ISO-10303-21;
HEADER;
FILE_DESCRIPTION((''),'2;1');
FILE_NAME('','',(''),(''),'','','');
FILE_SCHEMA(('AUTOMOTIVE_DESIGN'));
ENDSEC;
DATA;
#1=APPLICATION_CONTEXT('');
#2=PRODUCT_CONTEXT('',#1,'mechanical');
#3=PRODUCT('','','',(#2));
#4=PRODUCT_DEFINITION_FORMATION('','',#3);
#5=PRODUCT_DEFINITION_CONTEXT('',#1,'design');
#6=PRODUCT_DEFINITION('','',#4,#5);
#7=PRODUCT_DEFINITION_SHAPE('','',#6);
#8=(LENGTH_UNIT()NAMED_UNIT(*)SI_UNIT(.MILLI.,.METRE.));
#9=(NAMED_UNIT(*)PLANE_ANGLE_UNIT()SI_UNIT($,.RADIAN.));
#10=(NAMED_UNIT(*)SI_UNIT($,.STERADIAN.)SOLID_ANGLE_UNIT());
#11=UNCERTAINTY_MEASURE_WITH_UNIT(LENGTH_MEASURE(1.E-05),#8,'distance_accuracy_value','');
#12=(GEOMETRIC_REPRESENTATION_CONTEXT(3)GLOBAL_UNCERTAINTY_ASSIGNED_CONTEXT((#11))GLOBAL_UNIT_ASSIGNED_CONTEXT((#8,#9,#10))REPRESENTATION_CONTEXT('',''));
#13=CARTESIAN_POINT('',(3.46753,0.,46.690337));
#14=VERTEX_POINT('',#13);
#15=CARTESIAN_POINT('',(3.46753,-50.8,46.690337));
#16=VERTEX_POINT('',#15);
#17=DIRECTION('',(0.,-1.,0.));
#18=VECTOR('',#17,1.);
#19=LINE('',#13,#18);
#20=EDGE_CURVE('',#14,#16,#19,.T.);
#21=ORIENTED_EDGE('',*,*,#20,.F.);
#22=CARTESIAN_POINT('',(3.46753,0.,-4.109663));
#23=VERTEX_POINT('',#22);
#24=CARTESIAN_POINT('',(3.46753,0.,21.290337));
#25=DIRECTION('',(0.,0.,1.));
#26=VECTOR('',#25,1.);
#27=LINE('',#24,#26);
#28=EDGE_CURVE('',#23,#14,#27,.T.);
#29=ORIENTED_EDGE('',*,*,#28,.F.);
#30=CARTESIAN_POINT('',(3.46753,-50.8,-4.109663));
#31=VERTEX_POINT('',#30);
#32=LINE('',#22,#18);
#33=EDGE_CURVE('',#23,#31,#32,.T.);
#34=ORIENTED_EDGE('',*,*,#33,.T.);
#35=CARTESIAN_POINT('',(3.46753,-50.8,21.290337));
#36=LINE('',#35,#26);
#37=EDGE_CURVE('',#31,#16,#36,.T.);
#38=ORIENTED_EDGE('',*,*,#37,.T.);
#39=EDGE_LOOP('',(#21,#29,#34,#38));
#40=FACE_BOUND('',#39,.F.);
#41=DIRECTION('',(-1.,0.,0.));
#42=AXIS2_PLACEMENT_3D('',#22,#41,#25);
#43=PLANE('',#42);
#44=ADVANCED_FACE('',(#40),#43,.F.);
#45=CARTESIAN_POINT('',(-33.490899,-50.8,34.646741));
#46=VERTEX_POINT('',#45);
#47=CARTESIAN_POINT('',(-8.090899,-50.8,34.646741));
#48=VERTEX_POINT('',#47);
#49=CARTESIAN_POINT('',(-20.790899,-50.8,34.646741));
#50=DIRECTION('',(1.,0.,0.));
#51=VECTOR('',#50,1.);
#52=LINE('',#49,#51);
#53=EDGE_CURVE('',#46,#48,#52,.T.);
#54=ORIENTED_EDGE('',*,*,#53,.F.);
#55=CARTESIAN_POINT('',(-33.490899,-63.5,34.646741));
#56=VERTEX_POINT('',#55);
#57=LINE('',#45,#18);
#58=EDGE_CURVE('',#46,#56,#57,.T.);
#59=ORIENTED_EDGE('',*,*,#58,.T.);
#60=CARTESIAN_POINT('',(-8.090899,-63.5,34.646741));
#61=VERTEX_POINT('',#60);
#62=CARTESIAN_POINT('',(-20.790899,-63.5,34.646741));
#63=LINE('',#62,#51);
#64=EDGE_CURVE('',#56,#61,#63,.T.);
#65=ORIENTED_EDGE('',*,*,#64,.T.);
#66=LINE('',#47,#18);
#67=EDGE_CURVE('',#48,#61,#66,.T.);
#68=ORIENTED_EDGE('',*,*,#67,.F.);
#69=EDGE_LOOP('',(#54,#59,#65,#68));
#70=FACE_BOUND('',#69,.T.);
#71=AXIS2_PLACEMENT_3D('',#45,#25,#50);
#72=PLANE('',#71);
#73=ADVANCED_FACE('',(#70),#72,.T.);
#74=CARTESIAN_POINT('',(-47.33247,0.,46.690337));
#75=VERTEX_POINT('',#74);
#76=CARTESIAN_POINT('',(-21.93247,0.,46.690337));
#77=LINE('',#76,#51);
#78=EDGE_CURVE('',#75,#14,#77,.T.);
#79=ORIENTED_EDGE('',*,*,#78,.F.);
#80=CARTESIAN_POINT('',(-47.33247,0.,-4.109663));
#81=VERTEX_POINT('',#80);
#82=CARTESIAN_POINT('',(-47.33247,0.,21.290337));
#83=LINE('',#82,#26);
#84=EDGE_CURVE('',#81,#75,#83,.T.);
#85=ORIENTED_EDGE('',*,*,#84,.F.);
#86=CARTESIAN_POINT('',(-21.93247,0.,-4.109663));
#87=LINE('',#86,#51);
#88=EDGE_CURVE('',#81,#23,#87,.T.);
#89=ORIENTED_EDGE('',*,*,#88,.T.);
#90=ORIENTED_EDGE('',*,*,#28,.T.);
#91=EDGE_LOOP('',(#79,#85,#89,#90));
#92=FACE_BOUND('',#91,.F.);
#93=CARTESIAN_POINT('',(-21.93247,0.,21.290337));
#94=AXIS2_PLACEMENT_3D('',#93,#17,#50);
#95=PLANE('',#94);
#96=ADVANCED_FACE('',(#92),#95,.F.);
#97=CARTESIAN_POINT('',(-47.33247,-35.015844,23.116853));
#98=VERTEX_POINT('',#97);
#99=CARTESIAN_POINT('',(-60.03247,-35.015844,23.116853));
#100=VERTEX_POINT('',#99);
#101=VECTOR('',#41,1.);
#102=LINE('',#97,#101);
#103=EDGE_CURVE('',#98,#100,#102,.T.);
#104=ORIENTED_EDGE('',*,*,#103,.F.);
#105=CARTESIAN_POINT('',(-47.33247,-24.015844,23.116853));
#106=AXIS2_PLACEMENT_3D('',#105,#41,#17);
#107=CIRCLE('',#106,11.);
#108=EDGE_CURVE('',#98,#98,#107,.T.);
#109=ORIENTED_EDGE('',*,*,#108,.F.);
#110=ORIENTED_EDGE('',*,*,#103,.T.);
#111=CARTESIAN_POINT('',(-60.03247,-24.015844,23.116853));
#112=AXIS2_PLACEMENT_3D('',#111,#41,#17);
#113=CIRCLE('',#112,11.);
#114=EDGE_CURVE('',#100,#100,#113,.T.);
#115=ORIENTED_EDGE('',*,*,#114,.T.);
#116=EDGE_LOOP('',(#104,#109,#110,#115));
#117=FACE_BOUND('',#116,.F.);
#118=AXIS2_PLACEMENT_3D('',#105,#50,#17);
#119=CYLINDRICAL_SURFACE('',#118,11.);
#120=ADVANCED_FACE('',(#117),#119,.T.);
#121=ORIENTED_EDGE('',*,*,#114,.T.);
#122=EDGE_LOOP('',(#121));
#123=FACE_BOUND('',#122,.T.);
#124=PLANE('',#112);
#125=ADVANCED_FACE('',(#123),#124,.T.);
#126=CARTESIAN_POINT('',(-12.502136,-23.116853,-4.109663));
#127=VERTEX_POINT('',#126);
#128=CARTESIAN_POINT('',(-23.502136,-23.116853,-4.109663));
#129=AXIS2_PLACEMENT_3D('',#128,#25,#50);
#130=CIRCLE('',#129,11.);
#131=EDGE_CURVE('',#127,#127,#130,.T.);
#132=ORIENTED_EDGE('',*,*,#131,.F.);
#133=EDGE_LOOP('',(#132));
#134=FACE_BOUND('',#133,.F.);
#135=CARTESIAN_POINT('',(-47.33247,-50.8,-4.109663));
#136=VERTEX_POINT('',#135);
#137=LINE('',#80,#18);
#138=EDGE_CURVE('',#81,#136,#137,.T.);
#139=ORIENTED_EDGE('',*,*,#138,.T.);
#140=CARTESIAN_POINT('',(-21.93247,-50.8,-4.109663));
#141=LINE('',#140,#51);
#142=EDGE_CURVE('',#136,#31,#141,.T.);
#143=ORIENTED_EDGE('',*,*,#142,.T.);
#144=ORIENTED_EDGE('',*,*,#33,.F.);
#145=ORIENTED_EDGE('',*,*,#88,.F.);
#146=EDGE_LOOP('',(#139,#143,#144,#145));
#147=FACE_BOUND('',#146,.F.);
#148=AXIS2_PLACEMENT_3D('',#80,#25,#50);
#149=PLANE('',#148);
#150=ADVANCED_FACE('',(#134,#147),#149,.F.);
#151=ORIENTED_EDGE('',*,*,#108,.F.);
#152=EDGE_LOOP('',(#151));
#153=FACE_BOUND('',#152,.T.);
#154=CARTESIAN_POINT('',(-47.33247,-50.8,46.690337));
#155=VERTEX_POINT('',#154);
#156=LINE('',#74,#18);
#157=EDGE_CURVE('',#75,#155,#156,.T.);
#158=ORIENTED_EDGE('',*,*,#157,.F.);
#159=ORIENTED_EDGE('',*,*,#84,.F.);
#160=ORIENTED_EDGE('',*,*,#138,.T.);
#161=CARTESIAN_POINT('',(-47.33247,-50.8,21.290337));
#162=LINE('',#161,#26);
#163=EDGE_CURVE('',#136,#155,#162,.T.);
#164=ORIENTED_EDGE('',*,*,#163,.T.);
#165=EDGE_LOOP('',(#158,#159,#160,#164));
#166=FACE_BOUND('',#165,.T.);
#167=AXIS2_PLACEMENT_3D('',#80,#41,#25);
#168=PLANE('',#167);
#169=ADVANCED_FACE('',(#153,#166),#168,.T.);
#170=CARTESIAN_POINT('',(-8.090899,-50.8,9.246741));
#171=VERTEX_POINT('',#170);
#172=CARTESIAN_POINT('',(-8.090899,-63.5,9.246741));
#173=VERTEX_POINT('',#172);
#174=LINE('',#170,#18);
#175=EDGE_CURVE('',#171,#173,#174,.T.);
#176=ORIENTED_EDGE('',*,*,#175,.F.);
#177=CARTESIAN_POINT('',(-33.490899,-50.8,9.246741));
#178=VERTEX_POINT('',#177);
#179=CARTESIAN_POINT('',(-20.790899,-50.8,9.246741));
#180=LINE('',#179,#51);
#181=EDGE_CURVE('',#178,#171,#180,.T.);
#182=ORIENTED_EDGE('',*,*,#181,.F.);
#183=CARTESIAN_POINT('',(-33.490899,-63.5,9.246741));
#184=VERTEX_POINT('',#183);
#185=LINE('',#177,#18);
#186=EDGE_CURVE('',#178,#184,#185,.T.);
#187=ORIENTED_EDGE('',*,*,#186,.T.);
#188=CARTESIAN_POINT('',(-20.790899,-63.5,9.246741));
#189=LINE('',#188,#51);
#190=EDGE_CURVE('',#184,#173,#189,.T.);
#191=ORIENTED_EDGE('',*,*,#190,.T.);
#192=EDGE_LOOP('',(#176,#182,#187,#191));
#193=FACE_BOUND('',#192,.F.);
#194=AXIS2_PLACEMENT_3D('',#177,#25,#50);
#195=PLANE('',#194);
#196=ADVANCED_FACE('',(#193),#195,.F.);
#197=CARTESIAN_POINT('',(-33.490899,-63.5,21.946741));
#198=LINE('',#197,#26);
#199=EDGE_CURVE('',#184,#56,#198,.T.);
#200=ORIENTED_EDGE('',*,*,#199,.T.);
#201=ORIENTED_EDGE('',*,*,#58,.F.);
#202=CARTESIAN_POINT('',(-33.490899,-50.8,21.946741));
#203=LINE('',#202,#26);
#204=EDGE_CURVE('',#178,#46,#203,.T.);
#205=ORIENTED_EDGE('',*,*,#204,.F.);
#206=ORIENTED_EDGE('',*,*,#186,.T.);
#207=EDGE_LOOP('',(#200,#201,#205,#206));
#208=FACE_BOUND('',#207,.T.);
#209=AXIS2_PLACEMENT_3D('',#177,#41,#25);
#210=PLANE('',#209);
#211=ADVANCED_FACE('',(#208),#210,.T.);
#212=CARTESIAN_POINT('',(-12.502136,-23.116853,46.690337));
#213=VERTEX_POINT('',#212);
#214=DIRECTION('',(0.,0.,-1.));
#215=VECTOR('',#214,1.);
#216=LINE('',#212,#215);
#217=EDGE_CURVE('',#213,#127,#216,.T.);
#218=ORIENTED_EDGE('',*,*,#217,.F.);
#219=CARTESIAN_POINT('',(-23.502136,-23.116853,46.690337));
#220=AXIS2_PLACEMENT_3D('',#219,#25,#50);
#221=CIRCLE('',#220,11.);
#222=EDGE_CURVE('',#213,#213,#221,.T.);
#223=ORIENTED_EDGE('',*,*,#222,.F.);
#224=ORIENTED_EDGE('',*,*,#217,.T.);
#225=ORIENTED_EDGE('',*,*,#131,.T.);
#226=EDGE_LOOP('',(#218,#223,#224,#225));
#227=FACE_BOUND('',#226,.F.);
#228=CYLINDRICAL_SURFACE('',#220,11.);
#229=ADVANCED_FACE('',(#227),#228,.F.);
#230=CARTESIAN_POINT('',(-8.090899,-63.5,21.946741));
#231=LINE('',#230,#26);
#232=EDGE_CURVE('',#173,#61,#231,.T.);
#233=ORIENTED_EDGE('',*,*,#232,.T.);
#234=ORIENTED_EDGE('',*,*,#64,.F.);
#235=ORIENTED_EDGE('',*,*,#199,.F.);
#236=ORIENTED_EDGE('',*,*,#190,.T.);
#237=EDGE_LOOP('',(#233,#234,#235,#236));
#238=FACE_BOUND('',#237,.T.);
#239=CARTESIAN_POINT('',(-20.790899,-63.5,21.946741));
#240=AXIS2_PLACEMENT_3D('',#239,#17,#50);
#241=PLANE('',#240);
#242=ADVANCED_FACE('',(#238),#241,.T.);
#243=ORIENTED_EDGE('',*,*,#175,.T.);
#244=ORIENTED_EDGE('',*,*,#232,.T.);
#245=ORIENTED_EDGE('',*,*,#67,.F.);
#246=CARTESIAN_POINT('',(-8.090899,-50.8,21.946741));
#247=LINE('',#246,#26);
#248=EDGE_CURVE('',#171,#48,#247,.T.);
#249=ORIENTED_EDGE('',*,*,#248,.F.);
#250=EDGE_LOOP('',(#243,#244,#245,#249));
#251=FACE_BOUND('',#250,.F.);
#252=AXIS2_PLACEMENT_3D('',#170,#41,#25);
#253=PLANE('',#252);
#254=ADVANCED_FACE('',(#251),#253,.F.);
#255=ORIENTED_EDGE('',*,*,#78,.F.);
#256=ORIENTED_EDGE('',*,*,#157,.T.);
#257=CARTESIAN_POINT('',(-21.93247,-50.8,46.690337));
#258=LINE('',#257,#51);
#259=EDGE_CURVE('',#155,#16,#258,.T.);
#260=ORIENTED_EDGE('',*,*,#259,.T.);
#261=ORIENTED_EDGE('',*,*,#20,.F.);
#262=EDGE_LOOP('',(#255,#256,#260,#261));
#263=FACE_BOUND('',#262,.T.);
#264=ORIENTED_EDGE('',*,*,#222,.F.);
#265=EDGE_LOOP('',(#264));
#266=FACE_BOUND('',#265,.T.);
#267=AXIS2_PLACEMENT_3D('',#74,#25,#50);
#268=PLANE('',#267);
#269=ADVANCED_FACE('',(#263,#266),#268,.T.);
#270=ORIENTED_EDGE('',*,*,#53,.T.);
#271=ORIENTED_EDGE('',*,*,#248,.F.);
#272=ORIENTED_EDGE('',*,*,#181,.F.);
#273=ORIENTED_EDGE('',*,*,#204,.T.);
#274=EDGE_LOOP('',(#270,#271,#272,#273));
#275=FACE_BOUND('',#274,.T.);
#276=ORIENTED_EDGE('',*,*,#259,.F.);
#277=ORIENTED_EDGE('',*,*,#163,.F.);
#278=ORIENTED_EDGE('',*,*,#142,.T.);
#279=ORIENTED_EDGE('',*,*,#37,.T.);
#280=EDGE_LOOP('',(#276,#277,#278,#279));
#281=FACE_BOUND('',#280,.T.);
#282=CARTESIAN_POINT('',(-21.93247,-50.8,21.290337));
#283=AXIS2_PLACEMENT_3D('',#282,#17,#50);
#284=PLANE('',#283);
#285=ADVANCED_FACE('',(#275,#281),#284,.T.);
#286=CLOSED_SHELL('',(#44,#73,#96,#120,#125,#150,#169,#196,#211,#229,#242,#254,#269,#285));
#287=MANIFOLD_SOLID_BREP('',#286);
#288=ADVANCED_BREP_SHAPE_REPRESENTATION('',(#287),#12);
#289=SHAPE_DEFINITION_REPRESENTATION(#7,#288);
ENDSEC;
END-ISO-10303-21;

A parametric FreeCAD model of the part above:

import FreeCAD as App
import Part
import Sketcher
Q = App.Units.Quantity


def add_polygon(sketch, points):
    """Adds a closed chain of lines whose ends are joined by coincident constraints."""
    first, n = sketch.GeometryCount, len(points)
    for a, b in zip(points, points[1:] + points[:1]):
        sketch.addGeometry(Part.LineSegment(App.Vector(*a, 0), App.Vector(*b, 0)), False)
    for i in range(n):
        sketch.addConstraint(Sketcher.Constraint("Coincident", first + i, 2, first + (i + 1) % n, 1))

doc = App.newDocument("Part")
body = doc.addObject("PartDesign::Body", "Body")

# Sketch on XZ plane
sketch1 = body.newObject("Sketcher::SketchObject", "Sketch")
sketch1.AttachmentSupport = (doc.getObject("XZ_Plane"), [""])
sketch1.MapMode = "FlatFace"
add_polygon(sketch1, [(-47, 47), (-47, -4), (3, -4), (3, 47)])  # lines 0-3
sketch1.addConstraint(Sketcher.Constraint("Vertical", 0))
sketch1.addConstraint(Sketcher.Constraint("Horizontal", 1))
sketch1.addConstraint(Sketcher.Constraint("Vertical", 2))
sketch1.addConstraint(Sketcher.Constraint("Horizontal", 3))
sketch1.addConstraint(Sketcher.Constraint("Equal", 3, 0))
sketch1.addConstraint(Sketcher.Constraint("DistanceX", 1, 1, 1, 2, Q("2 in")))
sketch1.addConstraint(Sketcher.Constraint("DistanceX", 0, 2, -1, 1, Q("47.33247 mm")))
sketch1.addConstraint(Sketcher.Constraint("DistanceY", 0, 2, -1, 1, Q("4.109663 mm")))
pad1 = body.newObject("PartDesign::Pad", "Pad")
pad1.Profile = sketch1
pad1.Length = Q("2 in")

# Sketch on XZ plane
sketch2 = body.newObject("Sketcher::SketchObject", "Sketch001")
sketch2.AttachmentSupport = (doc.getObject("XZ_Plane"), [""])
sketch2.MapMode = "FlatFace"
sketch2.AttachmentOffset = App.Placement(App.Vector(0, 0, 2 * 25.4), App.Rotation())
add_polygon(sketch2, [(-33, 35), (-33, 9), (-8, 9), (-8, 35)])  # lines 0-3
sketch2.addConstraint(Sketcher.Constraint("Vertical", 0))
sketch2.addConstraint(Sketcher.Constraint("Horizontal", 1))
sketch2.addConstraint(Sketcher.Constraint("Vertical", 2))
sketch2.addConstraint(Sketcher.Constraint("Horizontal", 3))
sketch2.addConstraint(Sketcher.Constraint("Equal", 3, 0))
sketch2.addConstraint(Sketcher.Constraint("DistanceX", 1, 1, 1, 2, Q("1 in")))
sketch2.addConstraint(Sketcher.Constraint("DistanceX", 0, 2, -1, 1, Q("33.490899 mm")))
sketch2.addConstraint(Sketcher.Constraint("DistanceY", -1, 1, 0, 2, Q("9.246741 mm")))
pad2 = body.newObject("PartDesign::Pad", "Pad001")
pad2.Profile = sketch2
pad2.Length = Q("0.5 in")

# Sketch on XY plane
sketch3 = body.newObject("Sketcher::SketchObject", "Sketch002")
sketch3.AttachmentSupport = (doc.getObject("XY_Plane"), [""])
sketch3.MapMode = "FlatFace"
sketch3.AttachmentOffset = App.Placement(App.Vector(0, 0, 46.690337), App.Rotation())
sketch3.addGeometry(Part.Circle(App.Vector(-24, -23, 0), App.Vector(0, 0, 1), 11), False)
sketch3.addConstraint(Sketcher.Constraint("Diameter", 0, Q("22 mm")))
sketch3.addConstraint(Sketcher.Constraint("DistanceX", 0, 3, -1, 1, Q("23.502136 mm")))
sketch3.addConstraint(Sketcher.Constraint("DistanceY", 0, 3, -1, 1, Q("23.116853 mm")))
pocket1 = body.newObject("PartDesign::Pocket", "Pocket")
pocket1.Profile = sketch3
pocket1.Length = Q("2 in")

# Sketch on YZ plane
sketch4 = body.newObject("Sketcher::SketchObject", "Sketch003")
sketch4.AttachmentSupport = (doc.getObject("YZ_Plane"), [""])
sketch4.MapMode = "FlatFace"
sketch4.AttachmentOffset = App.Placement(App.Vector(0, 0, -47.33247), App.Rotation())
sketch4.addGeometry(Part.Circle(App.Vector(-24, 23, 0), App.Vector(0, 0, 1), 11), False)
sketch4.addConstraint(Sketcher.Constraint("Diameter", 0, Q("22 mm")))
sketch4.addConstraint(Sketcher.Constraint("DistanceX", 0, 3, -1, 1, Q("24.015844 mm")))
sketch4.addConstraint(Sketcher.Constraint("DistanceY", -1, 1, 0, 3, Q("23.116853 mm")))
pad3 = body.newObject("PartDesign::Pad", "Pad002")
pad3.Profile = sketch4
pad3.Length = Q("0.5 in")
pad3.Reversed = True

doc.recompute()
